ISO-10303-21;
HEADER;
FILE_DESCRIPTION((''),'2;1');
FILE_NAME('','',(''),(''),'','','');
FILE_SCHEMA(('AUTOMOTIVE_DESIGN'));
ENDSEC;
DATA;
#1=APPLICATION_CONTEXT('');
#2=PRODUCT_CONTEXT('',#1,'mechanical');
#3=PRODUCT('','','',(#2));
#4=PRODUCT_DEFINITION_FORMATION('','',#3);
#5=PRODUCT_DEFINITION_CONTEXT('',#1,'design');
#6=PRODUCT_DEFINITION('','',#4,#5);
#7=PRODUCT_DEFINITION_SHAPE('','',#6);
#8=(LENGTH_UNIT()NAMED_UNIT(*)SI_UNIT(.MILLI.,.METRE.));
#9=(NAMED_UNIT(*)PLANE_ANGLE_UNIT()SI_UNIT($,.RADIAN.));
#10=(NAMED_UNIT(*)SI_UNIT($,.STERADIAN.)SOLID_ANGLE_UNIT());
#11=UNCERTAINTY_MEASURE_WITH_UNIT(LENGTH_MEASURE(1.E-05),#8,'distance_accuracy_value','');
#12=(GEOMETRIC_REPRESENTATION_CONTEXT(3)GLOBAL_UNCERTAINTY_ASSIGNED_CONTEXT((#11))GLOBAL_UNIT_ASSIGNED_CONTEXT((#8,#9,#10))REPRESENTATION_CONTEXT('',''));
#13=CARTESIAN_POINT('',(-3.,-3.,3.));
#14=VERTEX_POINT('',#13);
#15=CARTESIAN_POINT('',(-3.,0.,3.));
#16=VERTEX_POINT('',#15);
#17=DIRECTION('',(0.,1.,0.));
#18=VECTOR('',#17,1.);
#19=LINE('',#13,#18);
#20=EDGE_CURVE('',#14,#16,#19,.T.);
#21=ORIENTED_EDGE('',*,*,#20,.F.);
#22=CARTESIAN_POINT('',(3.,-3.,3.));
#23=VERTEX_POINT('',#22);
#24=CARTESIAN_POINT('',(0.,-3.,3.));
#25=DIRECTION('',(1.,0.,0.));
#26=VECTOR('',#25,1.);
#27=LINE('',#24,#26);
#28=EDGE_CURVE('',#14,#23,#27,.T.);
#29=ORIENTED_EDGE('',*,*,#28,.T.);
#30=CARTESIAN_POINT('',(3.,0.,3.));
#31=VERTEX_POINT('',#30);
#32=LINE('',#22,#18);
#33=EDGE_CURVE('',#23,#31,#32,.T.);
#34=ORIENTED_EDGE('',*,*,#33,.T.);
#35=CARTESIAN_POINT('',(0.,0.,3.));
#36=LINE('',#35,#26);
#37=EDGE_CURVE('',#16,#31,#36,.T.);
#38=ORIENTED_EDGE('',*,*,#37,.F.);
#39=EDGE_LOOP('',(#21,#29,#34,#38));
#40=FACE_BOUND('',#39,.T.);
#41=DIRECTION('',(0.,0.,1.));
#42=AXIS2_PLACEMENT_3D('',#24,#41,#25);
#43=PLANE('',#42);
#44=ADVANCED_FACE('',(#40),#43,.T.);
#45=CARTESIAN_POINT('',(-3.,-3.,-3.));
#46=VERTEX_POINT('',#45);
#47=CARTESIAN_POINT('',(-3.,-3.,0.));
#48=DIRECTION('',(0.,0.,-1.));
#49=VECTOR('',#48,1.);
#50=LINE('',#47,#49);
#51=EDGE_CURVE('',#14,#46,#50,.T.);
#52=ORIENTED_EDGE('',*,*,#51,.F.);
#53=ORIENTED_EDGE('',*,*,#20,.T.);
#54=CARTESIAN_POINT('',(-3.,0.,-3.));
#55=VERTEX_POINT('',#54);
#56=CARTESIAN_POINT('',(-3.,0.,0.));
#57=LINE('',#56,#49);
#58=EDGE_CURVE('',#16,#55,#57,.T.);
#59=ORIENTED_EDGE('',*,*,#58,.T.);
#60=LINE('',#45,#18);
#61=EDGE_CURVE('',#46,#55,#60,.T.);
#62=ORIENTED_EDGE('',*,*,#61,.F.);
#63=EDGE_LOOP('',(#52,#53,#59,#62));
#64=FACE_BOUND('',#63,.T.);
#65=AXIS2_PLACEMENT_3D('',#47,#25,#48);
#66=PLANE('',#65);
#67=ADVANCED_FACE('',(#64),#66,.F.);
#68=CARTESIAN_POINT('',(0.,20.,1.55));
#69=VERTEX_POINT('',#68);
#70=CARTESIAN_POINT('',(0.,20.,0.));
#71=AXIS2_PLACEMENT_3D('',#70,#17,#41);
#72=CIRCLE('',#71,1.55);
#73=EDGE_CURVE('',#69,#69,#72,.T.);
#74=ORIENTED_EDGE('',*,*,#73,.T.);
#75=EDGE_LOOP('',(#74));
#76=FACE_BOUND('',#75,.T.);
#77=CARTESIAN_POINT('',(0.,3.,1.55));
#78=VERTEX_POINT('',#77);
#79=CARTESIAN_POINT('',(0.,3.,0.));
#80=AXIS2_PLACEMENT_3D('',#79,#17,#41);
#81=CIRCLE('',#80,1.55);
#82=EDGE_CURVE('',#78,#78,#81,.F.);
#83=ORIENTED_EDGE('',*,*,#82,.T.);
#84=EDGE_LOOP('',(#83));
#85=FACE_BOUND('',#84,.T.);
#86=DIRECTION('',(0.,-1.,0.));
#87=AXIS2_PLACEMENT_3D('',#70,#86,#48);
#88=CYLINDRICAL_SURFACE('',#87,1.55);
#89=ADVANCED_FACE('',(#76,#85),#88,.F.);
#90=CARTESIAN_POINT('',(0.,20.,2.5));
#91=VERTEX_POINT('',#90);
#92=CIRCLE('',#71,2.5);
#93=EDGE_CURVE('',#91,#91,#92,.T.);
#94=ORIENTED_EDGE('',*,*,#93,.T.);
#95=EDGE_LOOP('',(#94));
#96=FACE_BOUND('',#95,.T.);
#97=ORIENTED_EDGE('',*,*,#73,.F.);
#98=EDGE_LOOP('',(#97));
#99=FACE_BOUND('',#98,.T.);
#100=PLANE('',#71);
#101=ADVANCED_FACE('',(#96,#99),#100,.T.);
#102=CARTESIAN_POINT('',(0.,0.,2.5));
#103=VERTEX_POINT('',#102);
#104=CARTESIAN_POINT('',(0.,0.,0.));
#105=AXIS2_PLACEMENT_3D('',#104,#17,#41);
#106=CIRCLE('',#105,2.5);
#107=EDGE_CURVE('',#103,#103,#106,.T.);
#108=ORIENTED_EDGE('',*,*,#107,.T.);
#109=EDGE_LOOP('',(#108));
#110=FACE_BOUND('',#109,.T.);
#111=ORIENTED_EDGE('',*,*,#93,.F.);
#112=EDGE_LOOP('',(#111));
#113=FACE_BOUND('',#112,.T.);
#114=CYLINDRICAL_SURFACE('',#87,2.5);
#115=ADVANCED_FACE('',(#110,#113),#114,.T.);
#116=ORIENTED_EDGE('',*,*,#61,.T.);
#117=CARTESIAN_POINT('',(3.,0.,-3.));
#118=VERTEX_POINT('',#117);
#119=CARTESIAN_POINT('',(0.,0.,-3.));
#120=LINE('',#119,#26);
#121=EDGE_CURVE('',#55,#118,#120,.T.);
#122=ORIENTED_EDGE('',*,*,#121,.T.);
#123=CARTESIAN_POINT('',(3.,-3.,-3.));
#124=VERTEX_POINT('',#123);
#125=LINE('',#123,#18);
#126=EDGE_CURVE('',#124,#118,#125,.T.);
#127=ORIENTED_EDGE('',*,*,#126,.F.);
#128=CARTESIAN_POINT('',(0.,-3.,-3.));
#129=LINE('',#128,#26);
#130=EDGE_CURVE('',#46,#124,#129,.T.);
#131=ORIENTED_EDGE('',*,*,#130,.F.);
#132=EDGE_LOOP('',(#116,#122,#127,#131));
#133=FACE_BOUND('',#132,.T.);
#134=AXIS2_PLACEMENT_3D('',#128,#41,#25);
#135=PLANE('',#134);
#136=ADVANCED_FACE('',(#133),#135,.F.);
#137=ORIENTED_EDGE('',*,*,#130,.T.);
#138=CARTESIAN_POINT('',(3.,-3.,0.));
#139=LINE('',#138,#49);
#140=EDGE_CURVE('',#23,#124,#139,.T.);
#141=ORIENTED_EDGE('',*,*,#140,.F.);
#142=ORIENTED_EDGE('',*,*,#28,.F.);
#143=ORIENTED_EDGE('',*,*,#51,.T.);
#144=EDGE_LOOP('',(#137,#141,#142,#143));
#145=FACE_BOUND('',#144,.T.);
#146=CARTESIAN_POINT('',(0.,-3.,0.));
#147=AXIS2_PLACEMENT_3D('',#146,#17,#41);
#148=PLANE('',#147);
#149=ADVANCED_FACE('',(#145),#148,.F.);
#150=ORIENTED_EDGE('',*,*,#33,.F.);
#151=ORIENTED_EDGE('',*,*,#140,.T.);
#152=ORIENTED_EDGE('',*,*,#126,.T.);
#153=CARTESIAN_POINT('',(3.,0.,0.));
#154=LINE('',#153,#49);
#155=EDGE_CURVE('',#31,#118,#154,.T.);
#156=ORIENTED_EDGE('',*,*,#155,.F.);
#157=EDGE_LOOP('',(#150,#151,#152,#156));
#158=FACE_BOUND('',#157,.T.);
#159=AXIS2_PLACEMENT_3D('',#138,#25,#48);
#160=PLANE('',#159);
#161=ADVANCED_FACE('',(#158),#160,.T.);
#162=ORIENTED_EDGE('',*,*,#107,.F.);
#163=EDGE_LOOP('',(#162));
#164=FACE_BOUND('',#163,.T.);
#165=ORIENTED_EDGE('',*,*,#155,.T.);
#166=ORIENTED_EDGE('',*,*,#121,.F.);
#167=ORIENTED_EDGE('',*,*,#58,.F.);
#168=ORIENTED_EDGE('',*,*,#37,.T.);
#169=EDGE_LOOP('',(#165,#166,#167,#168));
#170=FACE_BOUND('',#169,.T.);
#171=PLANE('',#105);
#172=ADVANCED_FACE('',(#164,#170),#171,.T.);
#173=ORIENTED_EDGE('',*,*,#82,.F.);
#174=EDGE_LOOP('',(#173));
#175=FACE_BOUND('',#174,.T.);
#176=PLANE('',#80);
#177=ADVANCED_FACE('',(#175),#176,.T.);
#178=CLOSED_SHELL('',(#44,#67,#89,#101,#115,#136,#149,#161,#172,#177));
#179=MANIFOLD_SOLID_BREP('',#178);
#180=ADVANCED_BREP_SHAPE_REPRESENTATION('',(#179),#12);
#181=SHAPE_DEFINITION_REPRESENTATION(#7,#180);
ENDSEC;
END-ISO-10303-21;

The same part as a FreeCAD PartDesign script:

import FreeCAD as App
import Part
import Sketcher

V = App.Vector

doc = App.newDocument("Part")
params = doc.addObject("Spreadsheet::Sheet", "Params")
for row, (alias, value) in enumerate([
    ("sketch1_width", "6 mm"),
    ("pad1_length", "3 mm"),
    ("sketch2_diameter", "3.1 mm"),
    ("pad2_length", "3 mm"),
    ("sketch3_diameter", "5 mm"),
    ("sketch3_diameter2", "3.1 mm"),
    ("pad3_length", "20 mm"),
], start=1):
    params.set(f"A{row}", alias)
    params.set(f"B{row}", "=" + value)
    params.setAlias(f"B{row}", alias)

body = doc.addObject("PartDesign::Body", "Body")

# Sketch on XZ plane
sketch1 = body.newObject("Sketcher::SketchObject", "Sketch")
sketch1.AttachmentSupport = (doc.getObject("XZ_Plane"), [""])
sketch1.MapMode = "FlatFace"
sketch1.addGeometry([
    Part.LineSegment(V(-3, -3, 0), V(-3, 3, 0)),
    Part.LineSegment(V(-3, 3, 0), V(3, 3, 0)),
    Part.LineSegment(V(3, 3, 0), V(3, -3, 0)),
    Part.LineSegment(V(3, -3, 0), V(-3, -3, 0)),
], False)
sketch1.addConstraint([
    Sketcher.Constraint("Coincident", 0, 2, 1, 1),
    Sketcher.Constraint("Coincident", 1, 2, 2, 1),
    Sketcher.Constraint("Coincident", 2, 2, 3, 1),
    Sketcher.Constraint("Coincident", 3, 2, 0, 1),
    Sketcher.Constraint("Vertical", 0),
    Sketcher.Constraint("Horizontal", 1),
    Sketcher.Constraint("Vertical", 2),
    Sketcher.Constraint("Horizontal", 3),
    Sketcher.Constraint("Symmetric", 0, 2, 2, 2, -1, 1),
    Sketcher.Constraint("Equal", 3, 0),
    Sketcher.Constraint("DistanceX", 1, 1, 1, 2, 6.0),
])
sketch1.setExpression("Constraints[10]", "Params.sketch1_width")
pad1 = body.newObject("PartDesign::Pad", "Pad")
pad1.Profile = sketch1
pad1.setExpression("Length", "Params.pad1_length")

# Sketch on XZ plane
sketch2 = body.newObject("Sketcher::SketchObject", "Sketch001")
sketch2.AttachmentSupport = (doc.getObject("XZ_Plane"), [""])
sketch2.MapMode = "FlatFace"
sketch2.addGeometry(Part.Circle(V(0, 0, 0), V(0, 0, 1), 1.6), False)
sketch2.addConstraint([
    Sketcher.Constraint("Coincident", 0, 3, -1, 1),
    Sketcher.Constraint("Diameter", 0, 3.1),
])
sketch2.setExpression("Constraints[1]", "Params.sketch2_diameter")
pad2 = body.newObject("PartDesign::Pad", "Pad001")
pad2.Profile = sketch2
pad2.setExpression("Length", "Params.pad2_length")
pad2.Reversed = True

# Sketch on XZ plane
sketch3 = body.newObject("Sketcher::SketchObject", "Sketch002")
sketch3.AttachmentSupport = (doc.getObject("XZ_Plane"), [""])
sketch3.MapMode = "FlatFace"
sketch3.addGeometry([
    Part.Circle(V(0, 0, 0), V(0, 0, 1), 2.5),
    Part.Circle(V(0, 0, 0), V(0, 0, 1), 1.6),
], False)
sketch3.addConstraint([
    Sketcher.Constraint("Coincident", 0, 3, -1, 1),
    Sketcher.Constraint("Coincident", 1, 3, -1, 1),
    Sketcher.Constraint("Diameter", 0, 5.0),
    Sketcher.Constraint("Diameter", 1, 3.1),
])
sketch3.setExpression("Constraints[2]", "Params.sketch3_diameter")
sketch3.setExpression("Constraints[3]", "Params.sketch3_diameter2")
pad3 = body.newObject("PartDesign::Pad", "Pad002")
pad3.Profile = sketch3
pad3.setExpression("Length", "Params.pad3_length")
pad3.Reversed = True

doc.recompute()
